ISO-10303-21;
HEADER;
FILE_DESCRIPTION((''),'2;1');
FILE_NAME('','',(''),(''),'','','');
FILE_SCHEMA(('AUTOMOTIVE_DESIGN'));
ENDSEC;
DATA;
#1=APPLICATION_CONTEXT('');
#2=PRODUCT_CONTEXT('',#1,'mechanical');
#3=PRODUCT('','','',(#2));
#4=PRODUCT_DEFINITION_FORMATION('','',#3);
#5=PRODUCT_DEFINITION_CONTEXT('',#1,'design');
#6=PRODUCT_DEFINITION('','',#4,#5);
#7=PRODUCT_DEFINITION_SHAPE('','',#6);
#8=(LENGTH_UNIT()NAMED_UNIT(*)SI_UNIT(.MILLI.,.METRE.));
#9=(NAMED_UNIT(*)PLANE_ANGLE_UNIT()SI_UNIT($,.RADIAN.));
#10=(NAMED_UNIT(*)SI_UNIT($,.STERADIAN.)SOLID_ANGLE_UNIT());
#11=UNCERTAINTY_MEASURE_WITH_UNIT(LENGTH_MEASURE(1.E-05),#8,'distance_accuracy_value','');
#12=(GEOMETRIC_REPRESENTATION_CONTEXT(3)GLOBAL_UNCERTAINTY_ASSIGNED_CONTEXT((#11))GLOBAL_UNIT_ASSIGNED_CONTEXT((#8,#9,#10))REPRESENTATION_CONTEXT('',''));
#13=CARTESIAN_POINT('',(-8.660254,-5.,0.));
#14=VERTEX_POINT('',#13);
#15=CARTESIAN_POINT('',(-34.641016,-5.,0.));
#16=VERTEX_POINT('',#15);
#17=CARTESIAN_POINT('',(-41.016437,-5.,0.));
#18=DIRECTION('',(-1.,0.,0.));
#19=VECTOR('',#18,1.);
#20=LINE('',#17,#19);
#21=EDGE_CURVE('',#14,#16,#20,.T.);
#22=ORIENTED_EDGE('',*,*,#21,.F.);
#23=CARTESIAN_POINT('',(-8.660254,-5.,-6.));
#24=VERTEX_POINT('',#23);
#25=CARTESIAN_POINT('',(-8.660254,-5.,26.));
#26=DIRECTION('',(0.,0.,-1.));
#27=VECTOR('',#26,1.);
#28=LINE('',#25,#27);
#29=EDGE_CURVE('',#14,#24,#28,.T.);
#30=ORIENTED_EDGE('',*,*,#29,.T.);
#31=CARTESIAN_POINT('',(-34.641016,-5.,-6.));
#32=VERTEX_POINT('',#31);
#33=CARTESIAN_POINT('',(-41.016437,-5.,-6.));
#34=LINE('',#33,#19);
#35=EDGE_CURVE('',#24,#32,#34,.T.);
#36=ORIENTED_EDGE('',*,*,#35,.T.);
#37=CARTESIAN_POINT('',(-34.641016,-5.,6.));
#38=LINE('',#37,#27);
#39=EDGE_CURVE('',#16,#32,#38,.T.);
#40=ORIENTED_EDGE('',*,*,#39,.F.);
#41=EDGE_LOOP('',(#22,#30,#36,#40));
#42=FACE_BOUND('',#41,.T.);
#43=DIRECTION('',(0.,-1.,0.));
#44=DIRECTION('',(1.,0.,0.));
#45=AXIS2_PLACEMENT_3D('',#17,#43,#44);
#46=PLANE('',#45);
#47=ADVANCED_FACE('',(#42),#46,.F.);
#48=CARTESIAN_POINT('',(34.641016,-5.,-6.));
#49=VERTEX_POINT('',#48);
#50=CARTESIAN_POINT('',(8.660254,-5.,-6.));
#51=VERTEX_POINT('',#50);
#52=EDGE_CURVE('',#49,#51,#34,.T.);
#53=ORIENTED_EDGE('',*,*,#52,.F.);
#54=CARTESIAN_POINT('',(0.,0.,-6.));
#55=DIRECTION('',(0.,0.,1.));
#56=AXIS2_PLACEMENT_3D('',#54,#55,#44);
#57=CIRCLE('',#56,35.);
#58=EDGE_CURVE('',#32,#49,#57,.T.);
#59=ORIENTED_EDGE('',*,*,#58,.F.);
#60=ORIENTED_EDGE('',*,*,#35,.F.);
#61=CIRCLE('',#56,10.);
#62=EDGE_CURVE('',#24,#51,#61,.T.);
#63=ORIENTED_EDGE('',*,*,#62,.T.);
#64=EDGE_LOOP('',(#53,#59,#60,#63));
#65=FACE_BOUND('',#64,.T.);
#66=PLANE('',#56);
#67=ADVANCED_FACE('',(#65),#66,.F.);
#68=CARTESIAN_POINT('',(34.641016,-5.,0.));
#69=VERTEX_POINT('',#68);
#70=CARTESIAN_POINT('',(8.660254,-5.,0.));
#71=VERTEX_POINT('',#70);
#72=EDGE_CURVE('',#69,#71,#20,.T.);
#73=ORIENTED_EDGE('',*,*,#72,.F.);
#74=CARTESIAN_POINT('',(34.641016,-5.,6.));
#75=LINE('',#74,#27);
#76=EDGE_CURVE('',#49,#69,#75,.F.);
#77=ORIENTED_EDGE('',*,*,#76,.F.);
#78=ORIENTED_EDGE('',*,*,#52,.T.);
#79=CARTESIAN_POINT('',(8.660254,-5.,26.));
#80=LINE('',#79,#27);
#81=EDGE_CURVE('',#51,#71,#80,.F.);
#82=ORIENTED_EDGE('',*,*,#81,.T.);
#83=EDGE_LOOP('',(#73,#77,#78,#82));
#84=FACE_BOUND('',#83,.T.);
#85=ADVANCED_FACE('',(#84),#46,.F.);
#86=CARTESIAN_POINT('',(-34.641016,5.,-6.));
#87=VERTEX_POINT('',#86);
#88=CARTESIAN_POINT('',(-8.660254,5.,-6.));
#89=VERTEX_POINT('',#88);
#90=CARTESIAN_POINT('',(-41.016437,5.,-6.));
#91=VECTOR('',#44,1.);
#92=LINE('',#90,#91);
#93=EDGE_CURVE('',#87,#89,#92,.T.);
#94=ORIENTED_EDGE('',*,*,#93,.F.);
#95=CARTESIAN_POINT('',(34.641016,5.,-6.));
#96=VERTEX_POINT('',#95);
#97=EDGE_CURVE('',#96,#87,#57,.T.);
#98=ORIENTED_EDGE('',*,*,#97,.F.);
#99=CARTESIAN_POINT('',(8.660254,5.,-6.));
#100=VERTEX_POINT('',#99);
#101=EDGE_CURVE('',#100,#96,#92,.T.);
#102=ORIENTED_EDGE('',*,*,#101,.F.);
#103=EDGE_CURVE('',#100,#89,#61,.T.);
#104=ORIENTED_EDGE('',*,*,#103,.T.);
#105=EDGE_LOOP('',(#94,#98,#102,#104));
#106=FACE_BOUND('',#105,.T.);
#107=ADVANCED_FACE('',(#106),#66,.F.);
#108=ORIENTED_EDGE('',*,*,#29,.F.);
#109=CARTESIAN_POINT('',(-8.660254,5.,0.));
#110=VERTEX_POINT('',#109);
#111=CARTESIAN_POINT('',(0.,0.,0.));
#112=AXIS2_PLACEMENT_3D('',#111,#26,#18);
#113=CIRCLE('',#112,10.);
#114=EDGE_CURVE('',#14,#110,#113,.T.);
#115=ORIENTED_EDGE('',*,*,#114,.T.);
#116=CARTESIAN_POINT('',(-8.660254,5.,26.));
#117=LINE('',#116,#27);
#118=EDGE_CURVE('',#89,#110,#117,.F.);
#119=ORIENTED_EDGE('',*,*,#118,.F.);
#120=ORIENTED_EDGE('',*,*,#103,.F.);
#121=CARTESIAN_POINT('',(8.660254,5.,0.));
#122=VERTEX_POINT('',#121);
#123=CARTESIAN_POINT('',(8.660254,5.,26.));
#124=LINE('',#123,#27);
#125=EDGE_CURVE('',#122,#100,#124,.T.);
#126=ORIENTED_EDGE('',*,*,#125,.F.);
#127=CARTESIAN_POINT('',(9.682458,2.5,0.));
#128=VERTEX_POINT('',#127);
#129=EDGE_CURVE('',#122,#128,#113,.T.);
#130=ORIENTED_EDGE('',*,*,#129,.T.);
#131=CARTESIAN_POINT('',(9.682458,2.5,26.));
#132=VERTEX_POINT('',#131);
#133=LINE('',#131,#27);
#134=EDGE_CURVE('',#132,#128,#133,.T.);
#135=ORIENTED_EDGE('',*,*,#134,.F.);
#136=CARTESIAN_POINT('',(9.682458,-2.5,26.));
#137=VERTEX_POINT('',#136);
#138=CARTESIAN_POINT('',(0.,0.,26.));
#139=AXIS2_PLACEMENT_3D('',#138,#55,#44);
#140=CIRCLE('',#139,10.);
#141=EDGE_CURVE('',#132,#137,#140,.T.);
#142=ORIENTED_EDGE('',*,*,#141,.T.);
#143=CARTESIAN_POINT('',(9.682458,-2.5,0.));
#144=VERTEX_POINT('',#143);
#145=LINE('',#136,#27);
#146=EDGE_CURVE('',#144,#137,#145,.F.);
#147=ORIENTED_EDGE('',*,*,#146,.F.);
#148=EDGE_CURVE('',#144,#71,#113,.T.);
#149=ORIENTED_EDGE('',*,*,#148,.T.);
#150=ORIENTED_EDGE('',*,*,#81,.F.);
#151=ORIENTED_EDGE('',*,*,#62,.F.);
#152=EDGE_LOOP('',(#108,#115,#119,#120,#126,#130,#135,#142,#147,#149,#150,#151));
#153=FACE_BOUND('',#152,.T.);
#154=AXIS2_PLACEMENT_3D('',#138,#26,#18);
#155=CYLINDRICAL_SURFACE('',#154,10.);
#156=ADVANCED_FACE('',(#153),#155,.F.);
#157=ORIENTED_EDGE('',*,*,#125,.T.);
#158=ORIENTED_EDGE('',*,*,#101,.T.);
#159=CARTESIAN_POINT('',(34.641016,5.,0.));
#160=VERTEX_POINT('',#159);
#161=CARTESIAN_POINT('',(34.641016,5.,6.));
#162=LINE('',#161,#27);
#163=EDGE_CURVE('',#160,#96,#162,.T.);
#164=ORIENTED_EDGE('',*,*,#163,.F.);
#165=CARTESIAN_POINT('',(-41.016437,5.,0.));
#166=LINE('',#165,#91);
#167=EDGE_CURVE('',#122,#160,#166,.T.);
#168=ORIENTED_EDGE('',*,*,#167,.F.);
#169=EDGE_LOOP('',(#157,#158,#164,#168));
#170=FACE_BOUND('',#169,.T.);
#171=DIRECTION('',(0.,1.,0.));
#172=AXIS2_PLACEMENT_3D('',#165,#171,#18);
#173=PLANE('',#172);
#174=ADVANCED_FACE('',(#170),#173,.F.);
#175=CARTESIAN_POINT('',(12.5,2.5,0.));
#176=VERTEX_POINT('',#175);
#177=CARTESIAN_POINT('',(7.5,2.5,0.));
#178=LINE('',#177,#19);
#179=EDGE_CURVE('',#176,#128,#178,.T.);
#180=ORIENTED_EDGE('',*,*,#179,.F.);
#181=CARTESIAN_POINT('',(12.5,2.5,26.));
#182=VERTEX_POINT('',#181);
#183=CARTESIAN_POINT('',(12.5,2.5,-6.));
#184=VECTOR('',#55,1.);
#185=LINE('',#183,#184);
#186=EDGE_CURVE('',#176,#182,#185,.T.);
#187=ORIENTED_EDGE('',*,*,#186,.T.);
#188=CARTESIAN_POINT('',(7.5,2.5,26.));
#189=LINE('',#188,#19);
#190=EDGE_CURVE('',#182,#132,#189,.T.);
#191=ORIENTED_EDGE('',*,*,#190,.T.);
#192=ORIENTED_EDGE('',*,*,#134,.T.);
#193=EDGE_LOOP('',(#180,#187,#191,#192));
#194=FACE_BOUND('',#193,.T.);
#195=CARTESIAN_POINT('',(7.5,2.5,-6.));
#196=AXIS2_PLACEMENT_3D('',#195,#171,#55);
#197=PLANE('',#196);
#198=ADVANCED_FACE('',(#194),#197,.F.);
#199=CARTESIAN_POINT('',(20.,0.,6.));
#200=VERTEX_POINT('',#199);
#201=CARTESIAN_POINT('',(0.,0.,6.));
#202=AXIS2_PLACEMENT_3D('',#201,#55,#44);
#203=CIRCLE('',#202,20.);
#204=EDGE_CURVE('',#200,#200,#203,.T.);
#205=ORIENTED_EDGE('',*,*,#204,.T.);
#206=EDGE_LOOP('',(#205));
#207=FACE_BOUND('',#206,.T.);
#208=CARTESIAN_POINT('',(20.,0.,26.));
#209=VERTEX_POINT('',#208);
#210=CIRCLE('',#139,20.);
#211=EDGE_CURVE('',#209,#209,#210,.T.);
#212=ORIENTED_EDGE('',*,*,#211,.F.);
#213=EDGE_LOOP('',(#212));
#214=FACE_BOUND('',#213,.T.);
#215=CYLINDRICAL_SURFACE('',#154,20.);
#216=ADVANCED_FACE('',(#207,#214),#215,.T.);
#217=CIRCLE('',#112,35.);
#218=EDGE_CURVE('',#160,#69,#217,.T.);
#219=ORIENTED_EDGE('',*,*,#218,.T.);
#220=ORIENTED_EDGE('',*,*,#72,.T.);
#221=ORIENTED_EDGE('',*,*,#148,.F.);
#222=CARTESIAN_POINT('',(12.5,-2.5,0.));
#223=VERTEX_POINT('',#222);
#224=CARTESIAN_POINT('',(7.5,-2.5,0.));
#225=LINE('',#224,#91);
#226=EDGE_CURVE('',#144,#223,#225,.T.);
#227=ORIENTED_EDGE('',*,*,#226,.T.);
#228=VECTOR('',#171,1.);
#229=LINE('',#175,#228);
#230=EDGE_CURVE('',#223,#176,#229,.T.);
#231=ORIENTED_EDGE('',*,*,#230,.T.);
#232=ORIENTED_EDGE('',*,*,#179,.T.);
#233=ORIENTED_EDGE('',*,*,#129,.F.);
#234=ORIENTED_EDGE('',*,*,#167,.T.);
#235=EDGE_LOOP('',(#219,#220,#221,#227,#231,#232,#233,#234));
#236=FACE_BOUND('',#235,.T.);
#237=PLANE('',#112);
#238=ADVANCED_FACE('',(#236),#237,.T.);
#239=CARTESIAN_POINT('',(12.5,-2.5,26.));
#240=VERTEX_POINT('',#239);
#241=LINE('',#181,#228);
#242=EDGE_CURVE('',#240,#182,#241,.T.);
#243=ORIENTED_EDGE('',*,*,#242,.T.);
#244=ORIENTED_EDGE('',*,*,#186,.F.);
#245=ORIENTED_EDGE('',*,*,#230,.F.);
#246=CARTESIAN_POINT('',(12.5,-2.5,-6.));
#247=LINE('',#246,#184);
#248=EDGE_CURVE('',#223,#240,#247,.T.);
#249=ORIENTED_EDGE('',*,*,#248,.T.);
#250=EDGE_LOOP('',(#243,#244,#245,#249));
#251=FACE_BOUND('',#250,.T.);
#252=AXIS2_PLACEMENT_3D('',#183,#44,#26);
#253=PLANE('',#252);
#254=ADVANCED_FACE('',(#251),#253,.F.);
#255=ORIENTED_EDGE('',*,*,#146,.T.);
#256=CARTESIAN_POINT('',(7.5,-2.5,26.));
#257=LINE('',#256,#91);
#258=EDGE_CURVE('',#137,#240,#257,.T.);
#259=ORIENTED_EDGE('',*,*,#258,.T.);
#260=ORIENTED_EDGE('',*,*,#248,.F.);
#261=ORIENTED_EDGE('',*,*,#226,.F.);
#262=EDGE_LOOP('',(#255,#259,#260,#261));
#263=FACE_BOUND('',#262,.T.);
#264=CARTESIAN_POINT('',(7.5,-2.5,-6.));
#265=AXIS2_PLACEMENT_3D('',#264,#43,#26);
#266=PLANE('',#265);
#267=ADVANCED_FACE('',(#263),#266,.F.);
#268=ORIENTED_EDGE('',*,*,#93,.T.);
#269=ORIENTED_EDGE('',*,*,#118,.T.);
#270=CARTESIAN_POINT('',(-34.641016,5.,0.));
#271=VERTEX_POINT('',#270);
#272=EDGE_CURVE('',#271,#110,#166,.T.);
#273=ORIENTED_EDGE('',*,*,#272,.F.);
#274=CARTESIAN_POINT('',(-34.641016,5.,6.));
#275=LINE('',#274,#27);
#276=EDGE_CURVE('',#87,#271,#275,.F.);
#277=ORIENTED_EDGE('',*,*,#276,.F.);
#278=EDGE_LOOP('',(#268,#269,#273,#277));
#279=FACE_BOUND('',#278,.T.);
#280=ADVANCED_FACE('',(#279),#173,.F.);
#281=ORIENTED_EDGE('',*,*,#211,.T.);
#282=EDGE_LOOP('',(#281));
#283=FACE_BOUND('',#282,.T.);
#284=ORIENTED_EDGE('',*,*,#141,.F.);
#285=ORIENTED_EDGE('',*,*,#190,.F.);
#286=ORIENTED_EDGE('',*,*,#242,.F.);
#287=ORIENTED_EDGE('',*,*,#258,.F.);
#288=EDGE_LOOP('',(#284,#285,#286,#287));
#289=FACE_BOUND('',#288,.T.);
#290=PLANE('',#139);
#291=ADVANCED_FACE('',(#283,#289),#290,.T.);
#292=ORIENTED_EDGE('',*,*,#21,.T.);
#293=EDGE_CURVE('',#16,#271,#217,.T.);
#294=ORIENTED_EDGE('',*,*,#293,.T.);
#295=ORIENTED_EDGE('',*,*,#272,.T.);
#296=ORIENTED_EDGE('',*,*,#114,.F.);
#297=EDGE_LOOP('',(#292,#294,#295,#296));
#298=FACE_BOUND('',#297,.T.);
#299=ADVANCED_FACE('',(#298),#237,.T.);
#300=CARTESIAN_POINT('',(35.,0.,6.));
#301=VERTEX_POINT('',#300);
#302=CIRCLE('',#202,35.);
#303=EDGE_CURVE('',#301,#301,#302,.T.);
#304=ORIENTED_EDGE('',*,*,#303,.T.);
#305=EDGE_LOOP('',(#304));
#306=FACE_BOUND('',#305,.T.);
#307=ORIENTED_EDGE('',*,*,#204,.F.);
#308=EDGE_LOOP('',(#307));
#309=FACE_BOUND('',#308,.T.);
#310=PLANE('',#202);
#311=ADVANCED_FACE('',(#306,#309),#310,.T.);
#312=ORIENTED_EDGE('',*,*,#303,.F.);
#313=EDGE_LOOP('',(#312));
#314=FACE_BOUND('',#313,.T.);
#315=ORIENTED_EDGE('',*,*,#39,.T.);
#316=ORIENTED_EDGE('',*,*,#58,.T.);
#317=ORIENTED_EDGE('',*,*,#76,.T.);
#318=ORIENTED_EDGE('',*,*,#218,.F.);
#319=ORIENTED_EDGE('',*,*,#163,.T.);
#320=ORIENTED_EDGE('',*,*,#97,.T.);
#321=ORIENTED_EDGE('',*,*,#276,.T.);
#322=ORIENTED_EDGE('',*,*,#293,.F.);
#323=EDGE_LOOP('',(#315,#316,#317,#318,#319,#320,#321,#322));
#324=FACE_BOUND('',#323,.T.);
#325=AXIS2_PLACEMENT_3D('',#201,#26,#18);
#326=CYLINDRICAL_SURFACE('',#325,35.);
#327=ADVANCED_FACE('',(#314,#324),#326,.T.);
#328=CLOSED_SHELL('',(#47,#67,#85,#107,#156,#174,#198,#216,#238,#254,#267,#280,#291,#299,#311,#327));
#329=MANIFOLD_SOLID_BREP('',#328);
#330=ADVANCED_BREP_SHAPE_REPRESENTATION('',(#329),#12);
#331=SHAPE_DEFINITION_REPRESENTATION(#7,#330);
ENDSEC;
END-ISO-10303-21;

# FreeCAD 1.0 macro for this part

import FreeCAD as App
import Part
import Sketcher


def add_polygon(sketch, points):
    """Adds a closed chain of lines whose ends are joined by coincident constraints."""
    first, n = sketch.GeometryCount, len(points)
    for a, b in zip(points, points[1:] + points[:1]):
        sketch.addGeometry(Part.LineSegment(App.Vector(*a, 0), App.Vector(*b, 0)), False)
    for i in range(n):
        sketch.addConstraint(Sketcher.Constraint("Coincident", first + i, 2, first + (i + 1) % n, 1))

doc = App.newDocument("Part")
body = doc.addObject("PartDesign::Body", "Body")

# Sketch on XY plane
sketch1 = body.newObject("Sketcher::SketchObject", "Sketch")
sketch1.AttachmentSupport = (doc.getObject("XY_Plane"), [""])
sketch1.MapMode = "FlatFace"
sketch1.addGeometry(Part.Circle(App.Vector(0, 0, 0), App.Vector(0, 0, 1), 35), False)
sketch1.addConstraint([
    Sketcher.Constraint("Coincident", 0, 3, -1, 1),
    Sketcher.Constraint("Diameter", 0, 70.0),
])
pad1 = body.newObject("PartDesign::Pad", "Pad")
pad1.Profile = sketch1
pad1.Length = 12
pad1.Midplane = True

# Sketch on XY plane
sketch2 = body.newObject("Sketcher::SketchObject", "Sketch001")
sketch2.AttachmentSupport = (doc.getObject("XY_Plane"), [""])
sketch2.MapMode = "FlatFace"
sketch2.AttachmentOffset = App.Placement(App.Vector(0, 0, 6), App.Rotation())
sketch2.addGeometry([
    Part.Circle(App.Vector(0, 0, 0), App.Vector(0, 0, 1), 20),
    Part.Circle(App.Vector(0, 0, 0), App.Vector(0, 0, 1), 10),
], False)
sketch2.addConstraint([
    Sketcher.Constraint("Coincident", 0, 3, -1, 1),
    Sketcher.Constraint("Coincident", 1, 3, -1, 1),
    Sketcher.Constraint("Diameter", 0, 40.0),
    Sketcher.Constraint("Diameter", 1, 20.0),
])
pad2 = body.newObject("PartDesign::Pad", "Pad001")
pad2.Profile = sketch2
pad2.Length = 20

# Sketch on XY plane
sketch3 = body.newObject("Sketcher::SketchObject", "Sketch002")
sketch3.AttachmentSupport = (doc.getObject("XY_Plane"), [""])
sketch3.MapMode = "FlatFace"
sketch3.AttachmentOffset = App.Placement(App.Vector(0, 0, -14), App.Rotation())
sketch3.addGeometry(Part.Circle(App.Vector(0, 0, 0), App.Vector(0, 0, 1), 10), False)
sketch3.addConstraint([
    Sketcher.Constraint("Coincident", 0, 3, -1, 1),
    Sketcher.Constraint("Diameter", 0, 20.0),
])
pocket1 = body.newObject("PartDesign::Pocket", "Pocket")
pocket1.Profile = sketch3
pocket1.Length = 20
pocket1.Reversed = True

# Sketch on XY plane
sketch4 = body.newObject("Sketcher::SketchObject", "Sketch003")
sketch4.AttachmentSupport = (doc.getObject("XY_Plane"), [""])
sketch4.MapMode = "FlatFace"
sketch4.AttachmentOffset = App.Placement(App.Vector(0, 0, 26), App.Rotation())
add_polygon(sketch4, [(8, 2), (8, -2), (12, -2), (12, 2)])  # lines 0-3
sketch4.addConstraint([
    Sketcher.Constraint("Vertical", 0),
    Sketcher.Constraint("Horizontal", 1),
    Sketcher.Constraint("Vertical", 2),
    Sketcher.Constraint("Horizontal", 3),
    Sketcher.Constraint("Equal", 3, 0),
    Sketcher.Constraint("DistanceX", 1, 1, 1, 2, 5.0),
    Sketcher.Constraint("DistanceX", -1, 1, 0, 2, 7.5),
    Sketcher.Constraint("DistanceY", 0, 2, -1, 1, 2.5),
])
pocket2 = body.newObject("PartDesign::Pocket", "Pocket001")
pocket2.Profile = sketch4
pocket2.Type = "ThroughAll"

# Sketch on XY plane
sketch5 = body.newObject("Sketcher::SketchObject", "Sketch004")
sketch5.AttachmentSupport = (doc.getObject("XY_Plane"), [""])
sketch5.MapMode = "FlatFace"
sketch5.AttachmentOffset = App.Placement(App.Vector(0, 0, -6), App.Rotation())
add_polygon(sketch5, [(41, 5), (41, -5), (-41, -5), (-41, 5)])  # lines 0-3
sketch5.addConstraint([
    Sketcher.Constraint("Vertical", 0),
    Sketcher.Constraint("Horizontal", 1),
    Sketcher.Constraint("Vertical", 2),
    Sketcher.Constraint("Horizontal", 3),
    Sketcher.Constraint("Symmetric", 0, 2, 2, 2, -1, 1),
    Sketcher.Constraint("DistanceY", 0, 2, 0, 1, 10.0),
    Sketcher.Constraint("DistanceX", 1, 2, 1, 1, 82.032875),
])
pocket3 = body.newObject("PartDesign::Pocket", "Pocket002")
pocket3.Profile = sketch5
pocket3.Length = 6
pocket3.Reversed = True

doc.recompute()
